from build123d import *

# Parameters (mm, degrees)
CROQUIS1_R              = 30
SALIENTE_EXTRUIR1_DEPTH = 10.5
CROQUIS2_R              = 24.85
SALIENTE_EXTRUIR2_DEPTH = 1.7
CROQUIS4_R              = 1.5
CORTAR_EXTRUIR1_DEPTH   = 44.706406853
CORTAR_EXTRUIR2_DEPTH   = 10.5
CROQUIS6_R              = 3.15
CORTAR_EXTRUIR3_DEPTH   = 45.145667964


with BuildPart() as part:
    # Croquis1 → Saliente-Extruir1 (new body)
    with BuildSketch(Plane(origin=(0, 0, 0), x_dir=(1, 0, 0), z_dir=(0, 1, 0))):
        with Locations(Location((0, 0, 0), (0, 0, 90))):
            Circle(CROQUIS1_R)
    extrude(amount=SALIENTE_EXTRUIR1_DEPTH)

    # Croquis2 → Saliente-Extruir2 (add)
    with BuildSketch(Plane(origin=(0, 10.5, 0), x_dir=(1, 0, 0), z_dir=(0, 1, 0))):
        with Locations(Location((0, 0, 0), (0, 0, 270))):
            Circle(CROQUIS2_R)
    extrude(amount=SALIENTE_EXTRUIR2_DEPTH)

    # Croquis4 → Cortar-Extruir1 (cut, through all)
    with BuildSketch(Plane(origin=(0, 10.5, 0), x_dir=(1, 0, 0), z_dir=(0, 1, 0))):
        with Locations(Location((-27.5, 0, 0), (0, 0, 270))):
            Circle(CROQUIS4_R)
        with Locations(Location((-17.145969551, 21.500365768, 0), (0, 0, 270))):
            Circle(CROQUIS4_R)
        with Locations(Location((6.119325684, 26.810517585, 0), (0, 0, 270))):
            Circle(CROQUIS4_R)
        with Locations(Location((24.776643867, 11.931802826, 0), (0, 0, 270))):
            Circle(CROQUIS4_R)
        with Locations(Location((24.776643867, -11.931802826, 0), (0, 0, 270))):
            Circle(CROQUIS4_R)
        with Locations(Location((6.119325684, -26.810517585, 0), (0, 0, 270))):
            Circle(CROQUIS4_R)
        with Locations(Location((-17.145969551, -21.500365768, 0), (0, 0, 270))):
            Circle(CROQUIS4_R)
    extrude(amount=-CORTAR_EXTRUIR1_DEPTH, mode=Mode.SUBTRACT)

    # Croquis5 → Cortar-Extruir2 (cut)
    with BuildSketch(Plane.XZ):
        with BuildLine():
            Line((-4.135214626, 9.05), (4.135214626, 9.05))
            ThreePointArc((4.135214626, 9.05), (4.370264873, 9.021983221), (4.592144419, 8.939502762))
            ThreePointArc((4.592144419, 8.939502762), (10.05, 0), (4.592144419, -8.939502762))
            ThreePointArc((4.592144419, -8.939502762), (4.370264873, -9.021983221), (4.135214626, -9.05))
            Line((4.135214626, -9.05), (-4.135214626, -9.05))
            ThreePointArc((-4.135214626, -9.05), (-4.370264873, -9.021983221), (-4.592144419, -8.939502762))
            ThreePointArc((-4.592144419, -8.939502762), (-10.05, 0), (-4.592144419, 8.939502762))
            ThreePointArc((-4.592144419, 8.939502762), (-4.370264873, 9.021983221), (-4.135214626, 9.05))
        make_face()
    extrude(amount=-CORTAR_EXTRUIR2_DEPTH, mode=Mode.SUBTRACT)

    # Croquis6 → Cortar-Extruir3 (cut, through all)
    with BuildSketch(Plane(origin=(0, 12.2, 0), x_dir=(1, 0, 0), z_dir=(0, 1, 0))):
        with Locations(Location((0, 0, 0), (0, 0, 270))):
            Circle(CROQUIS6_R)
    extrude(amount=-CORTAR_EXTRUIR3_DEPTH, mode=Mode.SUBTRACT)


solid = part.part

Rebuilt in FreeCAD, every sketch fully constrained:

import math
import FreeCAD as App
import Part
import Sketcher

V = App.Vector
Q = App.Units.Quantity

doc = App.newDocument("Part")
body = doc.addObject("PartDesign::Body", "Body")

sketch1 = body.newObject("Sketcher::SketchObject", "Sketch")
sketch1.AttachmentSupport = (doc.getObject("XZ_Plane"), [""])
sketch1.MapMode = "FlatFace"
sketch1.addGeometry(Part.Circle(V(0, 0, 0), V(0, 0, 1), 30), False)
sketch1.addConstraint([
    Sketcher.Constraint("Coincident", 0, 3, -1, 1),
    Sketcher.Constraint("Diameter", 0, Q("60 mm")),
])
pad1 = body.newObject("PartDesign::Pad", "Pad")
pad1.Profile = sketch1
pad1.Length = 10.5
pad1.Reversed = True

sketch2 = body.newObject("Sketcher::SketchObject", "Sketch001")
sketch2.AttachmentSupport = (doc.getObject("XZ_Plane"), [""])
sketch2.MapMode = "FlatFace"
sketch2.AttachmentOffset = App.Placement(V(0, 0, -10.5), App.Rotation())
sketch2.addGeometry(Part.Circle(V(0, 0, 0), V(0, 0, 1), 24.85), False)
sketch2.addConstraint([
    Sketcher.Constraint("Coincident", 0, 3, -1, 1),
    Sketcher.Constraint("Diameter", 0, Q("49.7 mm")),
])
pad2 = body.newObject("PartDesign::Pad", "Pad001")
pad2.Profile = sketch2
pad2.Length = 1.7
pad2.Reversed = True

sketch3 = body.newObject("Sketcher::SketchObject", "Sketch002")
sketch3.AttachmentSupport = (doc.getObject("XZ_Plane"), [""])
sketch3.MapMode = "FlatFace"
sketch3.AttachmentOffset = App.Placement(V(0, 0, -10.5), App.Rotation())
sketch3.addGeometry([
    Part.Circle(V(-27.5, 0, 0), V(0, 0, 1), 1.5),
    Part.Circle(V(-17.14597, -21.500366, 0), V(0, 0, 1), 1.5),
    Part.Circle(V(6.119326, -26.810518, 0), V(0, 0, 1), 1.5),
    Part.Circle(V(24.776644, -11.931803, 0), V(0, 0, 1), 1.5),
    Part.Circle(V(24.776644, 11.931803, 0), V(0, 0, 1), 1.5),
    Part.Circle(V(6.119326, 26.810518, 0), V(0, 0, 1), 1.5),
    Part.Circle(V(-17.14597, 21.500366, 0), V(0, 0, 1), 1.5),
], False)
sketch3.addConstraint([
    Sketcher.Constraint("Equal", 0, 1),
    Sketcher.Constraint("Equal", 1, 2),
    Sketcher.Constraint("Equal", 2, 3),
    Sketcher.Constraint("Equal", 3, 4),
    Sketcher.Constraint("Equal", 4, 5),
    Sketcher.Constraint("Equal", 5, 6),
    Sketcher.Constraint("Symmetric", 3, 3, 4, 3, -1),
    Sketcher.Constraint("Symmetric", 2, 3, 5, 3, -1),
    Sketcher.Constraint("Symmetric", 1, 3, 6, 3, -1),
    Sketcher.Constraint("PointOnObject", 0, 3, -1),
    Sketcher.Constraint("Diameter", 0, Q("3 mm")),
    Sketcher.Constraint("DistanceX", 0, 3, -1, 1, Q("27.5 mm")),
    Sketcher.Constraint("DistanceX", 1, 3, -1, 1, Q("17.14597 mm")),
    Sketcher.Constraint("DistanceY", 2, 3, 1, 3, Q("5.310152 mm")),
    Sketcher.Constraint("DistanceX", 2, 3, 3, 3, Q("18.657318 mm")),
    Sketcher.Constraint("DistanceY", 2, 3, 4, 3, Q("38.74232 mm")),
    Sketcher.Constraint("DistanceY", 1, 3, 6, 3, Q("43.000732 mm")),
    Sketcher.Constraint("DistanceX", -1, 1, 2, 3, Q("6.119326 mm")),
])
pocket1 = body.newObject("PartDesign::Pocket", "Pocket")
pocket1.Profile = sketch3
pocket1.Type = "ThroughAll"
pocket1.Reversed = True

sketch4 = body.newObject("Sketcher::SketchObject", "Sketch003")
sketch4.AttachmentSupport = (doc.getObject("XZ_Plane"), [""])
sketch4.MapMode = "FlatFace"
sketch4.addGeometry([
    Part.LineSegment(V(4.135215, 9.05, 0), V(-4.135215, 9.05, 0)),
    Part.ArcOfCircle(Part.Circle(V(-4.135215, 8.05, 0), V(0, 0, 1), 1), math.radians(90), math.radians(117.18917)),
    Part.ArcOfCircle(Part.Circle(V(0, 0, 0), V(0, 0, 1), 10.05), math.radians(117.189169), math.radians(242.810831)),
    Part.ArcOfCircle(Part.Circle(V(-4.135215, -8.05, 0), V(0, 0, 1), 1), math.radians(-117.18917), math.radians(-90)),
    Part.LineSegment(V(-4.135215, -9.05, 0), V(4.135215, -9.05, 0)),
    Part.ArcOfCircle(Part.Circle(V(4.135215, -8.05, 0), V(0, 0, 1), 1), math.radians(-90), math.radians(-62.81083)),
    Part.ArcOfCircle(Part.Circle(V(0, 0, 0), V(0, 0, 1), 10.05), math.radians(-62.810831), math.radians(62.810831)),
    Part.ArcOfCircle(Part.Circle(V(4.135215, 8.05, 0), V(0, 0, 1), 1), math.radians(62.81083), math.radians(90)),
], False)
sketch4.addConstraint([
    Sketcher.Constraint("Tangent", 0, 2, 1, 1),
    Sketcher.Constraint("Tangent", 1, 2, 2, 1),
    Sketcher.Constraint("Tangent", 2, 2, 3, 1),
    Sketcher.Constraint("Tangent", 3, 2, 4, 1),
    Sketcher.Constraint("Tangent", 4, 2, 5, 1),
    Sketcher.Constraint("Tangent", 5, 2, 6, 1),
    Sketcher.Constraint("Tangent", 6, 2, 7, 1),
    Sketcher.Constraint("Tangent", 7, 2, 0, 1),
    Sketcher.Constraint("Horizontal", 0),
    Sketcher.Constraint("Horizontal", 4),
    Sketcher.Constraint("Coincident", 2, 3, -1, 1),
    Sketcher.Constraint("Coincident", 6, 3, -1, 1),
    Sketcher.Constraint("Equal", 1, 3),
    Sketcher.Constraint("Equal", 3, 5),
    Sketcher.Constraint("Equal", 2, 6),
    Sketcher.Constraint("Equal", 5, 7),
    Sketcher.Constraint("Vertical", 1, 3, 3, 3),
    Sketcher.Constraint("Radius", 1, Q("1 mm")),
    Sketcher.Constraint("Radius", 2, Q("10.05 mm")),
    Sketcher.Constraint("DistanceY", 3, 3, 1, 3, Q("16.1 mm")),
])
pocket2 = body.newObject("PartDesign::Pocket", "Pocket001")
pocket2.Profile = sketch4
pocket2.Length = 10.5

sketch5 = body.newObject("Sketcher::SketchObject", "Sketch004")
sketch5.AttachmentSupport = (doc.getObject("XZ_Plane"), [""])
sketch5.MapMode = "FlatFace"
sketch5.AttachmentOffset = App.Placement(V(0, 0, -12.2), App.Rotation())
sketch5.addGeometry(Part.Circle(V(0, 0, 0), V(0, 0, 1), 3.15), False)
sketch5.addConstraint([
    Sketcher.Constraint("Coincident", 0, 3, -1, 1),
    Sketcher.Constraint("Diameter", 0, Q("6.3 mm")),
])
pocket3 = body.newObject("PartDesign::Pocket", "Pocket002")
pocket3.Profile = sketch5
pocket3.Type = "ThroughAll"
pocket3.Reversed = True

doc.recompute()
